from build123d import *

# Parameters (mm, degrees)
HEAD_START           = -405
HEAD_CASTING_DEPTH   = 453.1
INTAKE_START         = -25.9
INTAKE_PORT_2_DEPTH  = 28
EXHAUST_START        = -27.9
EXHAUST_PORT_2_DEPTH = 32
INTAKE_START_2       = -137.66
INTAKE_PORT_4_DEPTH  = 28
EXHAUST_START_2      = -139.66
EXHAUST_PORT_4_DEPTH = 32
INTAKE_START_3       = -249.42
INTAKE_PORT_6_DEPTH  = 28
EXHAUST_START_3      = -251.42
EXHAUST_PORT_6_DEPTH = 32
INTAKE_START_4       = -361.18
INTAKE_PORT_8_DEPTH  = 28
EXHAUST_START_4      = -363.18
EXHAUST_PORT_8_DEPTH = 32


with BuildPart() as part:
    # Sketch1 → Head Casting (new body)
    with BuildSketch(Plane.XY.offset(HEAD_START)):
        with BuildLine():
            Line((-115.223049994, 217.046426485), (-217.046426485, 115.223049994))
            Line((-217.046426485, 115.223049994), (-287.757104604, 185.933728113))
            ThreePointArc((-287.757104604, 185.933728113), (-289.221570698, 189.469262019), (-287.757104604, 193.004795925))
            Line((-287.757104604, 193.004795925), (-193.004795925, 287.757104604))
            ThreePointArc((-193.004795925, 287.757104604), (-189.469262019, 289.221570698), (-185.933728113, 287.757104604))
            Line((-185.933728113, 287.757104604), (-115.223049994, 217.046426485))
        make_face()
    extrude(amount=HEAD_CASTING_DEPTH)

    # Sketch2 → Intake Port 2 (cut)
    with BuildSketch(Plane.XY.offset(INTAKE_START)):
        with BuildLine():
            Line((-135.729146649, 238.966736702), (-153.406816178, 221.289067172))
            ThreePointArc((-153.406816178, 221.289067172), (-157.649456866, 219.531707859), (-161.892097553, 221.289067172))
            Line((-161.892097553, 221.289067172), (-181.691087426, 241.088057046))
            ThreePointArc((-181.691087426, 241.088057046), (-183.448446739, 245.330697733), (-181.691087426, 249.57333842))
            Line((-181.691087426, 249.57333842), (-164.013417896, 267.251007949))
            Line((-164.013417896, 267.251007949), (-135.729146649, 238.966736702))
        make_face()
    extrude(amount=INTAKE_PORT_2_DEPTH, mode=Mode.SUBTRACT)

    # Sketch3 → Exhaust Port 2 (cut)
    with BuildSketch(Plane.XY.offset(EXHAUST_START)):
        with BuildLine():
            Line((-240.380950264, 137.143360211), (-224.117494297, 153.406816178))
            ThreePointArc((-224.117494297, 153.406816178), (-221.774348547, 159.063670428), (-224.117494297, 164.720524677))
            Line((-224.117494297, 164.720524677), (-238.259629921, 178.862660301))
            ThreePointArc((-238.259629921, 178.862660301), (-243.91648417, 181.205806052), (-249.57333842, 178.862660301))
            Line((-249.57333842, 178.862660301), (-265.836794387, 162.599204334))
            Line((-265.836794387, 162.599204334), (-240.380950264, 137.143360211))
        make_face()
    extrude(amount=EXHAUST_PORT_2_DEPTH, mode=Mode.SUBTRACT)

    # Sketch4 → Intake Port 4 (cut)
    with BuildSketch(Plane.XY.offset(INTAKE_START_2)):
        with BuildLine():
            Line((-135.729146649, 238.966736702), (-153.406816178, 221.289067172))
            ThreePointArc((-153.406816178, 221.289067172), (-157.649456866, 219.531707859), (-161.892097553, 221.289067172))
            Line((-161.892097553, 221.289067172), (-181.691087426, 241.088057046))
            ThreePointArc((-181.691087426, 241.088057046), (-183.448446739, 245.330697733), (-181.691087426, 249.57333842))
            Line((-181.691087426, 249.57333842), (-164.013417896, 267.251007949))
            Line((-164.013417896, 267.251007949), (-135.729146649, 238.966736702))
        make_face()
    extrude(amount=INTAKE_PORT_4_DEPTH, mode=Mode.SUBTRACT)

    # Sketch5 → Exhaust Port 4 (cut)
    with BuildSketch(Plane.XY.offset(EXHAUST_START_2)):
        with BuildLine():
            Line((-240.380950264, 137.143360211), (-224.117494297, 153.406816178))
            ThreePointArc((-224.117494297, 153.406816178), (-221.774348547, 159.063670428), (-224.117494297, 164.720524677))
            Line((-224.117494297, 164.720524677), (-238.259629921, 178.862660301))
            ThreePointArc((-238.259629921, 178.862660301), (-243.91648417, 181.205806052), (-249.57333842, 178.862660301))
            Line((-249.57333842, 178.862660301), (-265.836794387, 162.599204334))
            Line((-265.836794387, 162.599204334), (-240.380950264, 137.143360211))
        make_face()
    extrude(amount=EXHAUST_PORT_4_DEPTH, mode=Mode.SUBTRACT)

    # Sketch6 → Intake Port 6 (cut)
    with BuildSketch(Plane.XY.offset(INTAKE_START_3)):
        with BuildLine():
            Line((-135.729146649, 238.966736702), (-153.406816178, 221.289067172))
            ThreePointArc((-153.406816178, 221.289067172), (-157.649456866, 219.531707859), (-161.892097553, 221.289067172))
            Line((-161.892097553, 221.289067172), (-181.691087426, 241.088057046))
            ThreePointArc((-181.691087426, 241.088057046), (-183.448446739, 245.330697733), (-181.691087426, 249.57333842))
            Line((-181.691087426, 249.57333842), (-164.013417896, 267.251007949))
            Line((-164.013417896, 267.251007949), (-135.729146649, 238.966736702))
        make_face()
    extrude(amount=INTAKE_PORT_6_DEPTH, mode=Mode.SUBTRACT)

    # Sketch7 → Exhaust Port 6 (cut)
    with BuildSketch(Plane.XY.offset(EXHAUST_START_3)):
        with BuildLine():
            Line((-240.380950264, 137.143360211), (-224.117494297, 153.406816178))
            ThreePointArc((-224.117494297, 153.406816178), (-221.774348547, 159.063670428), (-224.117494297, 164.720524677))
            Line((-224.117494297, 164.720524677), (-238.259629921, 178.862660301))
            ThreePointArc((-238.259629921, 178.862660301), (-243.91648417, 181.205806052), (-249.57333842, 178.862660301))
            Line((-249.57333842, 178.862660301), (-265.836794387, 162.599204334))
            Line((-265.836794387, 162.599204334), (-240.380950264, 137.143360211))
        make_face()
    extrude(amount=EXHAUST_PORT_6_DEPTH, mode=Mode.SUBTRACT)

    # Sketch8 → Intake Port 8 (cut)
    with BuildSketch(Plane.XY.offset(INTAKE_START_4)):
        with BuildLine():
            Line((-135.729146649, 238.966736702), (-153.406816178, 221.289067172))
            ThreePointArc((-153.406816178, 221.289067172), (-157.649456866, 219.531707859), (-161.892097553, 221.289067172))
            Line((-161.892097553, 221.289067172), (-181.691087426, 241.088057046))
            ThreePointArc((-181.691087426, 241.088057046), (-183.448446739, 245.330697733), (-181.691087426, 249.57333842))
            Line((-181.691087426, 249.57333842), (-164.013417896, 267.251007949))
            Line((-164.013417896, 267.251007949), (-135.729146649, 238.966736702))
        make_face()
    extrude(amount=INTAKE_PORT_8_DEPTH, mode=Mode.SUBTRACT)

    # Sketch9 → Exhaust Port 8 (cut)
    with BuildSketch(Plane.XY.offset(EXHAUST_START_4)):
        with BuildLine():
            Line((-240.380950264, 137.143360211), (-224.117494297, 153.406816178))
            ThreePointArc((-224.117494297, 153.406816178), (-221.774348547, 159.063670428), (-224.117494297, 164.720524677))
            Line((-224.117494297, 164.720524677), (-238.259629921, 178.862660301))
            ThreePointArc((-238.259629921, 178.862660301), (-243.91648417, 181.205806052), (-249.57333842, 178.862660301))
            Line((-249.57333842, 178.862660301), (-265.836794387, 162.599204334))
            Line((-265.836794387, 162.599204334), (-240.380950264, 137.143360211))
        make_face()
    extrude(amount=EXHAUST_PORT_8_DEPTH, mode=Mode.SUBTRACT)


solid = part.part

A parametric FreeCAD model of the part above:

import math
import FreeCAD as App
import Part
import Sketcher

V = App.Vector
Q = App.Units.Quantity

doc = App.newDocument("Part")
body = doc.addObject("PartDesign::Body", "Body")

# Sketch on XY plane
sketch1 = body.newObject("Sketcher::SketchObject", "Sketch")
sketch1.AttachmentSupport = (doc.getObject("XY_Plane"), [""])
sketch1.MapMode = "FlatFace"
sketch1.AttachmentOffset = App.Placement(V(0, 0, -405), App.Rotation())
sketch1.addGeometry(Part.LineSegment(V(-217, 115, 0), V(-115, 217, 0)), False)
sketch1.addGeometry(Part.LineSegment(V(-115, 217, 0), V(-186, 288, 0)), False)
sketch1.addGeometry(Part.ArcOfCircle(Part.Circle(V(-189, 284, 0), V(0, 0, 1), 5), math.radians(45), math.radians(135)), False)
sketch1.addGeometry(Part.LineSegment(V(-193, 288, 0), V(-288, 193, 0)), False)
sketch1.addGeometry(Part.ArcOfCircle(Part.Circle(V(-284, 189, 0), V(0, 0, 1), 5), math.radians(135), math.radians(225)), False)
sketch1.addGeometry(Part.LineSegment(V(-288, 186, 0), V(-217, 115, 0)), False)
sketch1.addConstraint(Sketcher.Constraint("Coincident", 0, 2, 1, 1))
sketch1.addConstraint(Sketcher.Constraint("Tangent", 1, 2, 2, 1))
sketch1.addConstraint(Sketcher.Constraint("Tangent", 2, 2, 3, 1))
sketch1.addConstraint(Sketcher.Constraint("Tangent", 3, 2, 4, 1))
sketch1.addConstraint(Sketcher.Constraint("Tangent", 4, 2, 5, 1))
sketch1.addConstraint(Sketcher.Constraint("Coincident", 5, 2, 0, 1))
sketch1.addConstraint(Sketcher.Constraint("Equal", 2, 4))
sketch1.addConstraint(Sketcher.Constraint("Perpendicular", 0, 1))
sketch1.addConstraint(Sketcher.Constraint("Perpendicular", 1, 3))
sketch1.addConstraint(Sketcher.Constraint("Perpendicular", 3, 5))
sketch1.addConstraint(Sketcher.Constraint("Horizontal", 1, 2, 2, 2))
sketch1.addConstraint(Sketcher.Constraint("Radius", 2, Q("5 mm")))
sketch1.addConstraint(Sketcher.Constraint("Distance", 0, Q("144 mm")))
sketch1.addConstraint(Sketcher.Constraint("Distance", 1, Q("100 mm")))
sketch1.addConstraint(Sketcher.Constraint("DistanceY", -1, 1, 2, 3, Q("284.221571 mm")))
sketch1.addConstraint(Sketcher.Constraint("DistanceX", 4, 3, -1, 1, Q("284.221571 mm")))
pad1 = body.newObject("PartDesign::Pad", "Pad")
pad1.Profile = sketch1
pad1.Length = 453.1

# Sketch on XY plane
sketch2 = body.newObject("Sketcher::SketchObject", "Sketch001")
sketch2.AttachmentSupport = (doc.getObject("XY_Plane"), [""])
sketch2.MapMode = "FlatFace"
sketch2.AttachmentOffset = App.Placement(V(0, 0, -25.9), App.Rotation())
sketch2.addGeometry(Part.LineSegment(V(-153, 221, 0), V(-136, 239, 0)), False)
sketch2.addGeometry(Part.LineSegment(V(-136, 239, 0), V(-164, 267, 0)), False)
sketch2.addGeometry(Part.LineSegment(V(-164, 267, 0), V(-182, 250, 0)), False)
sketch2.addGeometry(Part.ArcOfCircle(Part.Circle(V(-177, 245, 0), V(0, 0, 1), 6), math.radians(135), math.radians(225)), False)
sketch2.addGeometry(Part.LineSegment(V(-182, 241, 0), V(-162, 221, 0)), False)
sketch2.addGeometry(Part.ArcOfCircle(Part.Circle(V(-158, 226, 0), V(0, 0, 1), 6), math.radians(-135), math.radians(-45)), False)
sketch2.addConstraint(Sketcher.Constraint("Coincident", 0, 2, 1, 1))
sketch2.addConstraint(Sketcher.Constraint("Coincident", 1, 2, 2, 1))
sketch2.addConstraint(Sketcher.Constraint("Tangent", 2, 2, 3, 1))
sketch2.addConstraint(Sketcher.Constraint("Tangent", 3, 2, 4, 1))
sketch2.addConstraint(Sketcher.Constraint("Tangent", 4, 2, 5, 1))
sketch2.addConstraint(Sketcher.Constraint("Tangent", 5, 2, 0, 1))
sketch2.addConstraint(Sketcher.Constraint("Equal", 3, 5))
sketch2.addConstraint(Sketcher.Constraint("Perpendicular", 0, 1))
sketch2.addConstraint(Sketcher.Constraint("Perpendicular", 1, 2))
sketch2.addConstraint(Sketcher.Constraint("Perpendicular", 2, 4))
sketch2.addConstraint(Sketcher.Constraint("Horizontal", 4, 2, 5, 2))
sketch2.addConstraint(Sketcher.Constraint("Radius", 3, Q("6 mm")))
sketch2.addConstraint(Sketcher.Constraint("Distance", 0, Q("25 mm")))
sketch2.addConstraint(Sketcher.Constraint("Distance", 1, Q("40 mm")))
sketch2.addConstraint(Sketcher.Constraint("DistanceY", -1, 1, 2, 2, Q("249.573338 mm")))
sketch2.addConstraint(Sketcher.Constraint("DistanceX", 3, 3, -1, 1, Q("177.448447 mm")))
pocket1 = body.newObject("PartDesign::Pocket", "Pocket")
pocket1.Profile = sketch2
pocket1.Length = 28
pocket1.Reversed = True

# Sketch on XY plane
sketch3 = body.newObject("Sketcher::SketchObject", "Sketch002")
sketch3.AttachmentSupport = (doc.getObject("XY_Plane"), [""])
sketch3.MapMode = "FlatFace"
sketch3.AttachmentOffset = App.Placement(V(0, 0, -27.9), App.Rotation())
sketch3.addGeometry(Part.LineSegment(V(-240, 137, 0), V(-224, 153, 0)), False)
sketch3.addGeometry(Part.ArcOfCircle(Part.Circle(V(-230, 159, 0), V(0, 0, 1), 8), math.radians(-45), math.radians(45)), False)
sketch3.addGeometry(Part.LineSegment(V(-224, 165, 0), V(-238, 179, 0)), False)
sketch3.addGeometry(Part.ArcOfCircle(Part.Circle(V(-244, 173, 0), V(0, 0, 1), 8), math.radians(45), math.radians(135)), False)
sketch3.addGeometry(Part.LineSegment(V(-250, 179, 0), V(-266, 163, 0)), False)
sketch3.addGeometry(Part.LineSegment(V(-266, 163, 0), V(-240, 137, 0)), False)
sketch3.addConstraint(Sketcher.Constraint("Tangent", 0, 2, 1, 1))
sketch3.addConstraint(Sketcher.Constraint("Tangent", 1, 2, 2, 1))
sketch3.addConstraint(Sketcher.Constraint("Tangent", 2, 2, 3, 1))
sketch3.addConstraint(Sketcher.Constraint("Tangent", 3, 2, 4, 1))
sketch3.addConstraint(Sketcher.Constraint("Coincident", 4, 2, 5, 1))
sketch3.addConstraint(Sketcher.Constraint("Coincident", 5, 2, 0, 1))
sketch3.addConstraint(Sketcher.Constraint("Equal", 1, 3))
sketch3.addConstraint(Sketcher.Constraint("Perpendicular", 0, 2))
sketch3.addConstraint(Sketcher.Constraint("Perpendicular", 2, 4))
sketch3.addConstraint(Sketcher.Constraint("Perpendicular", 4, 5))
sketch3.addConstraint(Sketcher.Constraint("Horizontal", 2, 2, 3, 2))
sketch3.addConstraint(Sketcher.Constraint("Radius", 1, Q("8 mm")))
sketch3.addConstraint(Sketcher.Constraint("Distance", 0, Q("23 mm")))
sketch3.addConstraint(Sketcher.Constraint("Distance", 2, Q("20 mm")))
sketch3.addConstraint(Sketcher.Constraint("DistanceX", 1, 3, -1, 1, Q("229.774349 mm")))
sketch3.addConstraint(Sketcher.Constraint("DistanceY", -1, 1, 1, 3, Q("159.06367 mm")))
pocket2 = body.newObject("PartDesign::Pocket", "Pocket001")
pocket2.Profile = sketch3
pocket2.Length = 32
pocket2.Reversed = True

# Sketch on XY plane
sketch4 = body.newObject("Sketcher::SketchObject", "Sketch003")
sketch4.AttachmentSupport = (doc.getObject("XY_Plane"), [""])
sketch4.MapMode = "FlatFace"
sketch4.AttachmentOffset = App.Placement(V(0, 0, -137.66), App.Rotation())
sketch4.addGeometry(Part.LineSegment(V(-153, 221, 0), V(-136, 239, 0)), False)
sketch4.addGeometry(Part.LineSegment(V(-136, 239, 0), V(-164, 267, 0)), False)
sketch4.addGeometry(Part.LineSegment(V(-164, 267, 0), V(-182, 250, 0)), False)
sketch4.addGeometry(Part.ArcOfCircle(Part.Circle(V(-177, 245, 0), V(0, 0, 1), 6), math.radians(135), math.radians(225)), False)
sketch4.addGeometry(Part.LineSegment(V(-182, 241, 0), V(-162, 221, 0)), False)
sketch4.addGeometry(Part.ArcOfCircle(Part.Circle(V(-158, 226, 0), V(0, 0, 1), 6), math.radians(-135), math.radians(-45)), False)
sketch4.addConstraint(Sketcher.Constraint("Coincident", 0, 2, 1, 1))
sketch4.addConstraint(Sketcher.Constraint("Coincident", 1, 2, 2, 1))
sketch4.addConstraint(Sketcher.Constraint("Tangent", 2, 2, 3, 1))
sketch4.addConstraint(Sketcher.Constraint("Tangent", 3, 2, 4, 1))
sketch4.addConstraint(Sketcher.Constraint("Tangent", 4, 2, 5, 1))
sketch4.addConstraint(Sketcher.Constraint("Tangent", 5, 2, 0, 1))
sketch4.addConstraint(Sketcher.Constraint("Equal", 3, 5))
sketch4.addConstraint(Sketcher.Constraint("Perpendicular", 0, 1))
sketch4.addConstraint(Sketcher.Constraint("Perpendicular", 1, 2))
sketch4.addConstraint(Sketcher.Constraint("Perpendicular", 2, 4))
sketch4.addConstraint(Sketcher.Constraint("Horizontal", 4, 2, 5, 2))
sketch4.addConstraint(Sketcher.Constraint("Radius", 3, Q("6 mm")))
sketch4.addConstraint(Sketcher.Constraint("Distance", 0, Q("25 mm")))
sketch4.addConstraint(Sketcher.Constraint("Distance", 1, Q("40 mm")))
sketch4.addConstraint(Sketcher.Constraint("DistanceY", -1, 1, 2, 2, Q("249.573338 mm")))
sketch4.addConstraint(Sketcher.Constraint("DistanceX", 3, 3, -1, 1, Q("177.448447 mm")))
pocket3 = body.newObject("PartDesign::Pocket", "Pocket002")
pocket3.Profile = sketch4
pocket3.Length = 28
pocket3.Reversed = True

# Sketch on XY plane
sketch5 = body.newObject("Sketcher::SketchObject", "Sketch004")
sketch5.AttachmentSupport = (doc.getObject("XY_Plane"), [""])
sketch5.MapMode = "FlatFace"
sketch5.AttachmentOffset = App.Placement(V(0, 0, -139.66), App.Rotation())
sketch5.addGeometry(Part.LineSegment(V(-240, 137, 0), V(-224, 153, 0)), False)
sketch5.addGeometry(Part.ArcOfCircle(Part.Circle(V(-230, 159, 0), V(0, 0, 1), 8), math.radians(-45), math.radians(45)), False)
sketch5.addGeometry(Part.LineSegment(V(-224, 165, 0), V(-238, 179, 0)), False)
sketch5.addGeometry(Part.ArcOfCircle(Part.Circle(V(-244, 173, 0), V(0, 0, 1), 8), math.radians(45), math.radians(135)), False)
sketch5.addGeometry(Part.LineSegment(V(-250, 179, 0), V(-266, 163, 0)), False)
sketch5.addGeometry(Part.LineSegment(V(-266, 163, 0), V(-240, 137, 0)), False)
sketch5.addConstraint(Sketcher.Constraint("Tangent", 0, 2, 1, 1))
sketch5.addConstraint(Sketcher.Constraint("Tangent", 1, 2, 2, 1))
sketch5.addConstraint(Sketcher.Constraint("Tangent", 2, 2, 3, 1))
sketch5.addConstraint(Sketcher.Constraint("Tangent", 3, 2, 4, 1))
sketch5.addConstraint(Sketcher.Constraint("Coincident", 4, 2, 5, 1))
sketch5.addConstraint(Sketcher.Constraint("Coincident", 5, 2, 0, 1))
sketch5.addConstraint(Sketcher.Constraint("Equal", 1, 3))
sketch5.addConstraint(Sketcher.Constraint("Perpendicular", 0, 2))
sketch5.addConstraint(Sketcher.Constraint("Perpendicular", 2, 4))
sketch5.addConstraint(Sketcher.Constraint("Perpendicular", 4, 5))
sketch5.addConstraint(Sketcher.Constraint("Horizontal", 2, 2, 3, 2))
sketch5.addConstraint(Sketcher.Constraint("Radius", 1, Q("8 mm")))
sketch5.addConstraint(Sketcher.Constraint("Distance", 0, Q("23 mm")))
sketch5.addConstraint(Sketcher.Constraint("Distance", 2, Q("20 mm")))
sketch5.addConstraint(Sketcher.Constraint("DistanceX", 1, 3, -1, 1, Q("229.774349 mm")))
sketch5.addConstraint(Sketcher.Constraint("DistanceY", -1, 1, 1, 3, Q("159.06367 mm")))
pocket4 = body.newObject("PartDesign::Pocket", "Pocket003")
pocket4.Profile = sketch5
pocket4.Length = 32
pocket4.Reversed = True

# Sketch on XY plane
sketch6 = body.newObject("Sketcher::SketchObject", "Sketch005")
sketch6.AttachmentSupport = (doc.getObject("XY_Plane"), [""])
sketch6.MapMode = "FlatFace"
sketch6.AttachmentOffset = App.Placement(V(0, 0, -249.42), App.Rotation())
sketch6.addGeometry(Part.LineSegment(V(-153, 221, 0), V(-136, 239, 0)), False)
sketch6.addGeometry(Part.LineSegment(V(-136, 239, 0), V(-164, 267, 0)), False)
sketch6.addGeometry(Part.LineSegment(V(-164, 267, 0), V(-182, 250, 0)), False)
sketch6.addGeometry(Part.ArcOfCircle(Part.Circle(V(-177, 245, 0), V(0, 0, 1), 6), math.radians(135), math.radians(225)), False)
sketch6.addGeometry(Part.LineSegment(V(-182, 241, 0), V(-162, 221, 0)), False)
sketch6.addGeometry(Part.ArcOfCircle(Part.Circle(V(-158, 226, 0), V(0, 0, 1), 6), math.radians(-135), math.radians(-45)), False)
sketch6.addConstraint(Sketcher.Constraint("Coincident", 0, 2, 1, 1))
sketch6.addConstraint(Sketcher.Constraint("Coincident", 1, 2, 2, 1))
sketch6.addConstraint(Sketcher.Constraint("Tangent", 2, 2, 3, 1))
sketch6.addConstraint(Sketcher.Constraint("Tangent", 3, 2, 4, 1))
sketch6.addConstraint(Sketcher.Constraint("Tangent", 4, 2, 5, 1))
sketch6.addConstraint(Sketcher.Constraint("Tangent", 5, 2, 0, 1))
sketch6.addConstraint(Sketcher.Constraint("Equal", 3, 5))
sketch6.addConstraint(Sketcher.Constraint("Perpendicular", 0, 1))
sketch6.addConstraint(Sketcher.Constraint("Perpendicular", 1, 2))
sketch6.addConstraint(Sketcher.Constraint("Perpendicular", 2, 4))
sketch6.addConstraint(Sketcher.Constraint("Horizontal", 4, 2, 5, 2))
sketch6.addConstraint(Sketcher.Constraint("Radius", 3, Q("6 mm")))
sketch6.addConstraint(Sketcher.Constraint("Distance", 0, Q("25 mm")))
sketch6.addConstraint(Sketcher.Constraint("Distance", 1, Q("40 mm")))
sketch6.addConstraint(Sketcher.Constraint("DistanceY", -1, 1, 2, 2, Q("249.573338 mm")))
sketch6.addConstraint(Sketcher.Constraint("DistanceX", 3, 3, -1, 1, Q("177.448447 mm")))
pocket5 = body.newObject("PartDesign::Pocket", "Pocket004")
pocket5.Profile = sketch6
pocket5.Length = 28
pocket5.Reversed = True

# Sketch on XY plane
sketch7 = body.newObject("Sketcher::SketchObject", "Sketch006")
sketch7.AttachmentSupport = (doc.getObject("XY_Plane"), [""])
sketch7.MapMode = "FlatFace"
sketch7.AttachmentOffset = App.Placement(V(0, 0, -251.42), App.Rotation())
sketch7.addGeometry(Part.LineSegment(V(-240, 137, 0), V(-224, 153, 0)), False)
sketch7.addGeometry(Part.ArcOfCircle(Part.Circle(V(-230, 159, 0), V(0, 0, 1), 8), math.radians(-45), math.radians(45)), False)
sketch7.addGeometry(Part.LineSegment(V(-224, 165, 0), V(-238, 179, 0)), False)
sketch7.addGeometry(Part.ArcOfCircle(Part.Circle(V(-244, 173, 0), V(0, 0, 1), 8), math.radians(45), math.radians(135)), False)
sketch7.addGeometry(Part.LineSegment(V(-250, 179, 0), V(-266, 163, 0)), False)
sketch7.addGeometry(Part.LineSegment(V(-266, 163, 0), V(-240, 137, 0)), False)
sketch7.addConstraint(Sketcher.Constraint("Tangent", 0, 2, 1, 1))
sketch7.addConstraint(Sketcher.Constraint("Tangent", 1, 2, 2, 1))
sketch7.addConstraint(Sketcher.Constraint("Tangent", 2, 2, 3, 1))
sketch7.addConstraint(Sketcher.Constraint("Tangent", 3, 2, 4, 1))
sketch7.addConstraint(Sketcher.Constraint("Coincident", 4, 2, 5, 1))
sketch7.addConstraint(Sketcher.Constraint("Coincident", 5, 2, 0, 1))
sketch7.addConstraint(Sketcher.Constraint("Equal", 1, 3))
sketch7.addConstraint(Sketcher.Constraint("Perpendicular", 0, 2))
sketch7.addConstraint(Sketcher.Constraint("Perpendicular", 2, 4))
sketch7.addConstraint(Sketcher.Constraint("Perpendicular", 4, 5))
sketch7.addConstraint(Sketcher.Constraint("Horizontal", 2, 2, 3, 2))
sketch7.addConstraint(Sketcher.Constraint("Radius", 1, Q("8 mm")))
sketch7.addConstraint(Sketcher.Constraint("Distance", 0, Q("23 mm")))
sketch7.addConstraint(Sketcher.Constraint("Distance", 2, Q("20 mm")))
sketch7.addConstraint(Sketcher.Constraint("DistanceX", 1, 3, -1, 1, Q("229.774349 mm")))
sketch7.addConstraint(Sketcher.Constraint("DistanceY", -1, 1, 1, 3, Q("159.06367 mm")))
pocket6 = body.newObject("PartDesign::Pocket", "Pocket005")
pocket6.Profile = sketch7
pocket6.Length = 32
pocket6.Reversed = True

# Sketch on XY plane
sketch8 = body.newObject("Sketcher::SketchObject", "Sketch007")
sketch8.AttachmentSupport = (doc.getObject("XY_Plane"), [""])
sketch8.MapMode = "FlatFace"
sketch8.AttachmentOffset = App.Placement(V(0, 0, -361.18), App.Rotation())
sketch8.addGeometry(Part.LineSegment(V(-153, 221, 0), V(-136, 239, 0)), False)
sketch8.addGeometry(Part.LineSegment(V(-136, 239, 0), V(-164, 267, 0)), False)
sketch8.addGeometry(Part.LineSegment(V(-164, 267, 0), V(-182, 250, 0)), False)
sketch8.addGeometry(Part.ArcOfCircle(Part.Circle(V(-177, 245, 0), V(0, 0, 1), 6), math.radians(135), math.radians(225)), False)
sketch8.addGeometry(Part.LineSegment(V(-182, 241, 0), V(-162, 221, 0)), False)
sketch8.addGeometry(Part.ArcOfCircle(Part.Circle(V(-158, 226, 0), V(0, 0, 1), 6), math.radians(-135), math.radians(-45)), False)
sketch8.addConstraint(Sketcher.Constraint("Coincident", 0, 2, 1, 1))
sketch8.addConstraint(Sketcher.Constraint("Coincident", 1, 2, 2, 1))
sketch8.addConstraint(Sketcher.Constraint("Tangent", 2, 2, 3, 1))
sketch8.addConstraint(Sketcher.Constraint("Tangent", 3, 2, 4, 1))
sketch8.addConstraint(Sketcher.Constraint("Tangent", 4, 2, 5, 1))
sketch8.addConstraint(Sketcher.Constraint("Tangent", 5, 2, 0, 1))
sketch8.addConstraint(Sketcher.Constraint("Equal", 3, 5))
sketch8.addConstraint(Sketcher.Constraint("Perpendicular", 0, 1))
sketch8.addConstraint(Sketcher.Constraint("Perpendicular", 1, 2))
sketch8.addConstraint(Sketcher.Constraint("Perpendicular", 2, 4))
sketch8.addConstraint(Sketcher.Constraint("Horizontal", 4, 2, 5, 2))
sketch8.addConstraint(Sketcher.Constraint("Radius", 3, Q("6 mm")))
sketch8.addConstraint(Sketcher.Constraint("Distance", 0, Q("25 mm")))
sketch8.addConstraint(Sketcher.Constraint("Distance", 1, Q("40 mm")))
sketch8.addConstraint(Sketcher.Constraint("DistanceY", -1, 1, 2, 2, Q("249.573338 mm")))
sketch8.addConstraint(Sketcher.Constraint("DistanceX", 3, 3, -1, 1, Q("177.448447 mm")))
pocket7 = body.newObject("PartDesign::Pocket", "Pocket006")
pocket7.Profile = sketch8
pocket7.Length = 28
pocket7.Reversed = True

# Sketch on XY plane
sketch9 = body.newObject("Sketcher::SketchObject", "Sketch008")
sketch9.AttachmentSupport = (doc.getObject("XY_Plane"), [""])
sketch9.MapMode = "FlatFace"
sketch9.AttachmentOffset = App.Placement(V(0, 0, -363.18), App.Rotation())
sketch9.addGeometry(Part.LineSegment(V(-240, 137, 0), V(-224, 153, 0)), False)
sketch9.addGeometry(Part.ArcOfCircle(Part.Circle(V(-230, 159, 0), V(0, 0, 1), 8), math.radians(-45), math.radians(45)), False)
sketch9.addGeometry(Part.LineSegment(V(-224, 165, 0), V(-238, 179, 0)), False)
sketch9.addGeometry(Part.ArcOfCircle(Part.Circle(V(-244, 173, 0), V(0, 0, 1), 8), math.radians(45), math.radians(135)), False)
sketch9.addGeometry(Part.LineSegment(V(-250, 179, 0), V(-266, 163, 0)), False)
sketch9.addGeometry(Part.LineSegment(V(-266, 163, 0), V(-240, 137, 0)), False)
sketch9.addConstraint(Sketcher.Constraint("Tangent", 0, 2, 1, 1))
sketch9.addConstraint(Sketcher.Constraint("Tangent", 1, 2, 2, 1))
sketch9.addConstraint(Sketcher.Constraint("Tangent", 2, 2, 3, 1))
sketch9.addConstraint(Sketcher.Constraint("Tangent", 3, 2, 4, 1))
sketch9.addConstraint(Sketcher.Constraint("Coincident", 4, 2, 5, 1))
sketch9.addConstraint(Sketcher.Constraint("Coincident", 5, 2, 0, 1))
sketch9.addConstraint(Sketcher.Constraint("Equal", 1, 3))
sketch9.addConstraint(Sketcher.Constraint("Perpendicular", 0, 2))
sketch9.addConstraint(Sketcher.Constraint("Perpendicular", 2, 4))
sketch9.addConstraint(Sketcher.Constraint("Perpendicular", 4, 5))
sketch9.addConstraint(Sketcher.Constraint("Horizontal", 2, 2, 3, 2))
sketch9.addConstraint(Sketcher.Constraint("Radius", 1, Q("8 mm")))
sketch9.addConstraint(Sketcher.Constraint("Distance", 0, Q("23 mm")))
sketch9.addConstraint(Sketcher.Constraint("Distance", 2, Q("20 mm")))
sketch9.addConstraint(Sketcher.Constraint("DistanceX", 1, 3, -1, 1, Q("229.774349 mm")))
sketch9.addConstraint(Sketcher.Constraint("DistanceY", -1, 1, 1, 3, Q("159.06367 mm")))
pocket8 = body.newObject("PartDesign::Pocket", "Pocket007")
pocket8.Profile = sketch9
pocket8.Length = 32
pocket8.Reversed = True

doc.recompute()
